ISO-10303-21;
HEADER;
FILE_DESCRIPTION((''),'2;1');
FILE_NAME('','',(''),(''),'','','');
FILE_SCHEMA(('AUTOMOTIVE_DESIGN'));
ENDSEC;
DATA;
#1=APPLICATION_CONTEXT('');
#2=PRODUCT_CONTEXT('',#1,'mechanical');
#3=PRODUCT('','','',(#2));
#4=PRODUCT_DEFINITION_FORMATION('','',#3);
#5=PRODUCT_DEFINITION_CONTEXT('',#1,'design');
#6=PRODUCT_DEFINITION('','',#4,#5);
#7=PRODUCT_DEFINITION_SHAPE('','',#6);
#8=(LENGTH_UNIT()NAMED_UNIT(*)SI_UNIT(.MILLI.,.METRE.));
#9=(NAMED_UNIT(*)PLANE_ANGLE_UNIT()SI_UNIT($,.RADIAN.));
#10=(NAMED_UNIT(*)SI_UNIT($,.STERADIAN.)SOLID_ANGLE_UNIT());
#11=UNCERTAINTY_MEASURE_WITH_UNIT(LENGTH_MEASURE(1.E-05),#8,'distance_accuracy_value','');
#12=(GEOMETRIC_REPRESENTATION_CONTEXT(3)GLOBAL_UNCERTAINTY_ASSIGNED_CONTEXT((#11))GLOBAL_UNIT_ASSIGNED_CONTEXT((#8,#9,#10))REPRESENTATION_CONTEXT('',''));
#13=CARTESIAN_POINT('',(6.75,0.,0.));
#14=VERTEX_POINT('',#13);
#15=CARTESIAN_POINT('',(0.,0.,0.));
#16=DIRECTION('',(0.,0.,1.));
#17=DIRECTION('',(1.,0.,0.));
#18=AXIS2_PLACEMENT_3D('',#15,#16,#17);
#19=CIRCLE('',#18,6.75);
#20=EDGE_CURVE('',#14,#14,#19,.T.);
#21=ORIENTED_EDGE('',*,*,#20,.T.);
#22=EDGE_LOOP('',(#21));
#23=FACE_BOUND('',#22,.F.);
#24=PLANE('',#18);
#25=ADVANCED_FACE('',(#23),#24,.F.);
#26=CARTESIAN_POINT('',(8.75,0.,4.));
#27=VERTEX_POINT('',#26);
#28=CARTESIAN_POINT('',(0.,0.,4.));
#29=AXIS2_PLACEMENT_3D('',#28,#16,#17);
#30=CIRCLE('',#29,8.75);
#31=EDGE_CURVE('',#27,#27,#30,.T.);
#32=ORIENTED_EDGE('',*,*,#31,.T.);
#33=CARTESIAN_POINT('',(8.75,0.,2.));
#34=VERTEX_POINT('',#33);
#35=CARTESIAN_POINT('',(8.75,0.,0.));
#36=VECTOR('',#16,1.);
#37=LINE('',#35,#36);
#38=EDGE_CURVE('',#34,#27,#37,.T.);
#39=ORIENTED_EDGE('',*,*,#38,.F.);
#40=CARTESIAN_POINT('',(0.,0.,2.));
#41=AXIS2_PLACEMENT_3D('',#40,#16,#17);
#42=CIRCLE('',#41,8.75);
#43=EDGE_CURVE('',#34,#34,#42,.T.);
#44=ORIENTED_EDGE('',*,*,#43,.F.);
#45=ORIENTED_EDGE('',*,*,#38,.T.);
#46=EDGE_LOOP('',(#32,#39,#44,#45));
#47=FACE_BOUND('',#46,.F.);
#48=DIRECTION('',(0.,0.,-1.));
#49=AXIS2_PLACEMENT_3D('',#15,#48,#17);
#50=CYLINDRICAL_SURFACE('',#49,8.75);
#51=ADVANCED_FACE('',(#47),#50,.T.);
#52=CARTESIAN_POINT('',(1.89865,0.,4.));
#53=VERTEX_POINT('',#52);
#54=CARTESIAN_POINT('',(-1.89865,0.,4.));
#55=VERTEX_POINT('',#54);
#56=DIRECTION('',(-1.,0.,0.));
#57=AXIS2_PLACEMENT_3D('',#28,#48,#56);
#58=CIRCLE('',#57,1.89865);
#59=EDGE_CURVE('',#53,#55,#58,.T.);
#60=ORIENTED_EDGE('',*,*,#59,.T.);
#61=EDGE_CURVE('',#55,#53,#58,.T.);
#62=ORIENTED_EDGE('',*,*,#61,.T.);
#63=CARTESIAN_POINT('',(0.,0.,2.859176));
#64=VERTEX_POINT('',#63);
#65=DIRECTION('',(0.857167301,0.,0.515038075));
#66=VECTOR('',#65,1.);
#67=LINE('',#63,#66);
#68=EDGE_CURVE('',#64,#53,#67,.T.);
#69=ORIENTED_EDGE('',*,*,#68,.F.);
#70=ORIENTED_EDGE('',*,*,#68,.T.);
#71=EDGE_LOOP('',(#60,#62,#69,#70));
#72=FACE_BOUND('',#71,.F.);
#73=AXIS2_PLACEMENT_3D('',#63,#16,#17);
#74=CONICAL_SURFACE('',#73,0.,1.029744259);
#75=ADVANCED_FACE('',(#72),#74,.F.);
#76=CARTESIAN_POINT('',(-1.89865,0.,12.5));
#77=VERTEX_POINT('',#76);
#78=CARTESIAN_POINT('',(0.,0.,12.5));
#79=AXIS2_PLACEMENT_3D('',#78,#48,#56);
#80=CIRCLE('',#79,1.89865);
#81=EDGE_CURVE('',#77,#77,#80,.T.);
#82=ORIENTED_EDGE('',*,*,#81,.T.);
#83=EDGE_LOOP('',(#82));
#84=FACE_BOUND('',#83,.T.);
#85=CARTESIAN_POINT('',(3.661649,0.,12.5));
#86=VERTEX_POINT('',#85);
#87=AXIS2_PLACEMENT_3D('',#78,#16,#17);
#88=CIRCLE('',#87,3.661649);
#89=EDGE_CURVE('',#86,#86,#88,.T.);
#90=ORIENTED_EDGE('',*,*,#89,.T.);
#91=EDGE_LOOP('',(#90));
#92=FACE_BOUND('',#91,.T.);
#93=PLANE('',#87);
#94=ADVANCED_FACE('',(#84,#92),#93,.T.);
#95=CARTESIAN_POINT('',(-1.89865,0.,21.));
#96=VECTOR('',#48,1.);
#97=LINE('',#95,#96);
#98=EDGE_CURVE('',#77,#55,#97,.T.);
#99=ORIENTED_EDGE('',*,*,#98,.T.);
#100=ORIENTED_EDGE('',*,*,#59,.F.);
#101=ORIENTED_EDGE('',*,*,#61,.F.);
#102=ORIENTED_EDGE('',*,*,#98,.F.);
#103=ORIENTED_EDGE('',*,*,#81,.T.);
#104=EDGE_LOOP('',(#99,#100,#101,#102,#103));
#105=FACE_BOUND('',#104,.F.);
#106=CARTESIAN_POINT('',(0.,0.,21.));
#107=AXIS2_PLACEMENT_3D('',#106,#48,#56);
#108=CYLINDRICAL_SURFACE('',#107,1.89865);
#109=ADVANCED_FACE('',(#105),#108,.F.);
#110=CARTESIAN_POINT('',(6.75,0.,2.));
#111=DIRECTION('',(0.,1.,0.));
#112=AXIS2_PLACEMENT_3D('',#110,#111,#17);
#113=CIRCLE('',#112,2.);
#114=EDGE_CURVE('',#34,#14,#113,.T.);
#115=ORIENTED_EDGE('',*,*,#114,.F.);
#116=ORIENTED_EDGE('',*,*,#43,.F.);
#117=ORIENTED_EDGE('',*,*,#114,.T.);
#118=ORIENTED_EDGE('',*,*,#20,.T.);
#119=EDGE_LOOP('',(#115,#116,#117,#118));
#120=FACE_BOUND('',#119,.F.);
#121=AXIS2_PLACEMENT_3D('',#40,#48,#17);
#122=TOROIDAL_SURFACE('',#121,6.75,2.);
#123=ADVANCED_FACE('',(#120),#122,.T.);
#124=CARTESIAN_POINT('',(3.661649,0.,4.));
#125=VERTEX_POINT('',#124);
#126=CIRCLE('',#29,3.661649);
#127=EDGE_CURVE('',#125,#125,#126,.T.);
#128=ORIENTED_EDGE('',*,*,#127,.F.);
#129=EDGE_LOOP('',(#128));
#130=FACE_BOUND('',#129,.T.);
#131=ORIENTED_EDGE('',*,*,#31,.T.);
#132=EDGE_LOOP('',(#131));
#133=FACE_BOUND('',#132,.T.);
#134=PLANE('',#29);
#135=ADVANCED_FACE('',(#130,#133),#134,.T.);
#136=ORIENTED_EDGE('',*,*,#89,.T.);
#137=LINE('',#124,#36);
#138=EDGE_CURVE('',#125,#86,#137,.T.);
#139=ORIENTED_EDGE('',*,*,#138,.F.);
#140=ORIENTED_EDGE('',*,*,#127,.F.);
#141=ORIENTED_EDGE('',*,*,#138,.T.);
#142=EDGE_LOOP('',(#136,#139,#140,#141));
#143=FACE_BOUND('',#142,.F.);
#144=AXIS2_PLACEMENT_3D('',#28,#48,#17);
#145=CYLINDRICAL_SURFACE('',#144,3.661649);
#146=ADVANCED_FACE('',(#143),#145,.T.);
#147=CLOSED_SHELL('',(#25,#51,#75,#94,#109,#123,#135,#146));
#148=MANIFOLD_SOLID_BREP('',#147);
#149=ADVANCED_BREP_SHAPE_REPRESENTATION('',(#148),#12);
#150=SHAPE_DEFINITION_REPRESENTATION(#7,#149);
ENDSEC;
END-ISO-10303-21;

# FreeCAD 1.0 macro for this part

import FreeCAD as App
import Part
import Sketcher

V = App.Vector


def edges_at(feature, points):
    """Names of the edges that pass closest to the given points."""
    edges = feature.Shape.Edges
    near = lambda p: min(range(len(edges)), key=lambda i: edges[i].distToShape(Part.Vertex(*p))[0])
    return sorted({f"Edge{near(p) + 1}" for p in points})

doc = App.newDocument("Part")
body = doc.addObject("PartDesign::Body", "Body")

sketch1 = body.newObject("Sketcher::SketchObject", "Sketch")
sketch1.AttachmentSupport = (doc.getObject("XY_Plane"), [""])
sketch1.MapMode = "FlatFace"
sketch1.addGeometry(Part.Circle(V(0, 0, 0), V(0, 0, 1), 9), False)
sketch1.addConstraint(Sketcher.Constraint("Coincident", 0, 3, -1, 1))
sketch1.addConstraint(Sketcher.Constraint("Diameter", 0, 17.5))
pad1 = body.newObject("PartDesign::Pad", "Pad")
pad1.Profile = sketch1
pad1.Length = 4

sketch2 = body.newObject("Sketcher::SketchObject", "Sketch001")
sketch2.AttachmentSupport = (doc.getObject("XY_Plane"), [""])
sketch2.MapMode = "FlatFace"
sketch2.AttachmentOffset = App.Placement(V(0, 0, 4), App.Rotation())
sketch2.addGeometry(Part.Circle(V(0, 0, 0), V(0, 0, 1), 3.7), False)
sketch2.addConstraint(Sketcher.Constraint("Coincident", 0, 3, -1, 1))
sketch2.addConstraint(Sketcher.Constraint("Diameter", 0, 7.323299))
pad2 = body.newObject("PartDesign::Pad", "Pad001")
pad2.Profile = sketch2
pad2.Length = 8.5

sketch3 = body.newObject("Sketcher::SketchObject", "Sketch002")
sketch3.AttachmentSupport = (doc.getObject("XY_Plane"), [""])
sketch3.MapMode = "FlatFace"
sketch3.AttachmentOffset = App.Placement(V(0, 0, 12.5), App.Rotation())
sketch3.addGeometry(Part.Circle(V(0, 0, 0), V(0, 0, 1), 1.9), False)
sketch3.addConstraint(Sketcher.Constraint("Coincident", 0, 3, -1, 1))
sketch3.addConstraint(Sketcher.Constraint("Diameter", 0, 3.7973))
doc.recompute()
hole = body.newObject("PartDesign::Hole", "Hole")
hole.Profile = sketch3
hole.ThreadType = "None"
hole.Diameter = 3.7973
hole.DepthType = "Dimension"
hole.Depth = 8.5
hole.DrillPoint = "Angled"
hole.DrillPointAngle = 118
doc.recompute()

fillet = body.newObject("PartDesign::Fillet", "Fillet")
fillet.Base = (hole, edges_at(hole, [(-8.75, 0, 0)]))
fillet.Radius = 2

doc.recompute()
